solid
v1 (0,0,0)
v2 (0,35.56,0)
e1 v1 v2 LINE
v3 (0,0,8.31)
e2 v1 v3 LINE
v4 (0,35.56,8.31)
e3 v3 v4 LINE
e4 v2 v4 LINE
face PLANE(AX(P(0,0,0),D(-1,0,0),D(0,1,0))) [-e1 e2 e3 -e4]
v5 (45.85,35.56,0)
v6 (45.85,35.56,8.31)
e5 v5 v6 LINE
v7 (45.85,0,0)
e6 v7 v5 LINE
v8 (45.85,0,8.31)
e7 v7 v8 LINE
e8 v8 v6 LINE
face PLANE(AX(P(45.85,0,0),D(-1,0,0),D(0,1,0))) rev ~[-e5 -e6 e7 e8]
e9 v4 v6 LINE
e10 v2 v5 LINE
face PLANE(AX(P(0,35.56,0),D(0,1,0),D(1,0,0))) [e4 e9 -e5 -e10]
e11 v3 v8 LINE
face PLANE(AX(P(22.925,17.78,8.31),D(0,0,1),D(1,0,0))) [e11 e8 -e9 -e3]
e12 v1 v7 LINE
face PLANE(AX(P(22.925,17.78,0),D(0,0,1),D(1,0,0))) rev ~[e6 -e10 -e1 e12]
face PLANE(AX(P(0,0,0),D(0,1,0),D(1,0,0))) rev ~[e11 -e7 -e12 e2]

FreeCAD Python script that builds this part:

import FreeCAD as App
import Part
import Sketcher
Q = App.Units.Quantity


def add_polygon(sketch, points):
    """Adds a closed chain of lines whose ends are joined by coincident constraints."""
    first, n = sketch.GeometryCount, len(points)
    for a, b in zip(points, points[1:] + points[:1]):
        sketch.addGeometry(Part.LineSegment(App.Vector(*a, 0), App.Vector(*b, 0)), False)
    for i in range(n):
        sketch.addConstraint(Sketcher.Constraint("Coincident", first + i, 2, first + (i + 1) % n, 1))

doc = App.newDocument("Part")
params = doc.addObject("Spreadsheet::Sheet", "Params")
for row, (alias, value) in enumerate([
    ("sketch1_height", "1.4 in"),
    ("pad1_length", "8.31 mm"),
], start=1):
    params.set(f"A{row}", alias)
    params.set(f"B{row}", "=" + value)
    params.setAlias(f"B{row}", alias)

body = doc.addObject("PartDesign::Body", "Body")

# Sketch on XY plane
sketch1 = body.newObject("Sketcher::SketchObject", "Sketch")
sketch1.AttachmentSupport = (doc.getObject("XY_Plane"), [""])
sketch1.MapMode = "FlatFace"
add_polygon(sketch1, [(0, 36), (0, 0), (46, 0), (46, 36)])  # lines 0-3
sketch1.addConstraint(Sketcher.Constraint("Vertical", 0))
sketch1.addConstraint(Sketcher.Constraint("Horizontal", 1))
sketch1.addConstraint(Sketcher.Constraint("Vertical", 2))
sketch1.addConstraint(Sketcher.Constraint("Horizontal", 3))
sketch1.addConstraint(Sketcher.Constraint("Coincident", 0, 2, -1, 1))
sketch1.addConstraint(Sketcher.Constraint("DistanceY", 0, 2, 0, 1, Q("1.4 in")))
sketch1.addConstraint(Sketcher.Constraint("DistanceX", 1, 1, 1, 2, Q("45.85 mm")))
sketch1.setExpression("Constraints[9]", "Params.sketch1_height")
pad1 = body.newObject("PartDesign::Pad", "Pad")
pad1.Profile = sketch1
pad1.setExpression("Length", "Params.pad1_length")

doc.recompute()
